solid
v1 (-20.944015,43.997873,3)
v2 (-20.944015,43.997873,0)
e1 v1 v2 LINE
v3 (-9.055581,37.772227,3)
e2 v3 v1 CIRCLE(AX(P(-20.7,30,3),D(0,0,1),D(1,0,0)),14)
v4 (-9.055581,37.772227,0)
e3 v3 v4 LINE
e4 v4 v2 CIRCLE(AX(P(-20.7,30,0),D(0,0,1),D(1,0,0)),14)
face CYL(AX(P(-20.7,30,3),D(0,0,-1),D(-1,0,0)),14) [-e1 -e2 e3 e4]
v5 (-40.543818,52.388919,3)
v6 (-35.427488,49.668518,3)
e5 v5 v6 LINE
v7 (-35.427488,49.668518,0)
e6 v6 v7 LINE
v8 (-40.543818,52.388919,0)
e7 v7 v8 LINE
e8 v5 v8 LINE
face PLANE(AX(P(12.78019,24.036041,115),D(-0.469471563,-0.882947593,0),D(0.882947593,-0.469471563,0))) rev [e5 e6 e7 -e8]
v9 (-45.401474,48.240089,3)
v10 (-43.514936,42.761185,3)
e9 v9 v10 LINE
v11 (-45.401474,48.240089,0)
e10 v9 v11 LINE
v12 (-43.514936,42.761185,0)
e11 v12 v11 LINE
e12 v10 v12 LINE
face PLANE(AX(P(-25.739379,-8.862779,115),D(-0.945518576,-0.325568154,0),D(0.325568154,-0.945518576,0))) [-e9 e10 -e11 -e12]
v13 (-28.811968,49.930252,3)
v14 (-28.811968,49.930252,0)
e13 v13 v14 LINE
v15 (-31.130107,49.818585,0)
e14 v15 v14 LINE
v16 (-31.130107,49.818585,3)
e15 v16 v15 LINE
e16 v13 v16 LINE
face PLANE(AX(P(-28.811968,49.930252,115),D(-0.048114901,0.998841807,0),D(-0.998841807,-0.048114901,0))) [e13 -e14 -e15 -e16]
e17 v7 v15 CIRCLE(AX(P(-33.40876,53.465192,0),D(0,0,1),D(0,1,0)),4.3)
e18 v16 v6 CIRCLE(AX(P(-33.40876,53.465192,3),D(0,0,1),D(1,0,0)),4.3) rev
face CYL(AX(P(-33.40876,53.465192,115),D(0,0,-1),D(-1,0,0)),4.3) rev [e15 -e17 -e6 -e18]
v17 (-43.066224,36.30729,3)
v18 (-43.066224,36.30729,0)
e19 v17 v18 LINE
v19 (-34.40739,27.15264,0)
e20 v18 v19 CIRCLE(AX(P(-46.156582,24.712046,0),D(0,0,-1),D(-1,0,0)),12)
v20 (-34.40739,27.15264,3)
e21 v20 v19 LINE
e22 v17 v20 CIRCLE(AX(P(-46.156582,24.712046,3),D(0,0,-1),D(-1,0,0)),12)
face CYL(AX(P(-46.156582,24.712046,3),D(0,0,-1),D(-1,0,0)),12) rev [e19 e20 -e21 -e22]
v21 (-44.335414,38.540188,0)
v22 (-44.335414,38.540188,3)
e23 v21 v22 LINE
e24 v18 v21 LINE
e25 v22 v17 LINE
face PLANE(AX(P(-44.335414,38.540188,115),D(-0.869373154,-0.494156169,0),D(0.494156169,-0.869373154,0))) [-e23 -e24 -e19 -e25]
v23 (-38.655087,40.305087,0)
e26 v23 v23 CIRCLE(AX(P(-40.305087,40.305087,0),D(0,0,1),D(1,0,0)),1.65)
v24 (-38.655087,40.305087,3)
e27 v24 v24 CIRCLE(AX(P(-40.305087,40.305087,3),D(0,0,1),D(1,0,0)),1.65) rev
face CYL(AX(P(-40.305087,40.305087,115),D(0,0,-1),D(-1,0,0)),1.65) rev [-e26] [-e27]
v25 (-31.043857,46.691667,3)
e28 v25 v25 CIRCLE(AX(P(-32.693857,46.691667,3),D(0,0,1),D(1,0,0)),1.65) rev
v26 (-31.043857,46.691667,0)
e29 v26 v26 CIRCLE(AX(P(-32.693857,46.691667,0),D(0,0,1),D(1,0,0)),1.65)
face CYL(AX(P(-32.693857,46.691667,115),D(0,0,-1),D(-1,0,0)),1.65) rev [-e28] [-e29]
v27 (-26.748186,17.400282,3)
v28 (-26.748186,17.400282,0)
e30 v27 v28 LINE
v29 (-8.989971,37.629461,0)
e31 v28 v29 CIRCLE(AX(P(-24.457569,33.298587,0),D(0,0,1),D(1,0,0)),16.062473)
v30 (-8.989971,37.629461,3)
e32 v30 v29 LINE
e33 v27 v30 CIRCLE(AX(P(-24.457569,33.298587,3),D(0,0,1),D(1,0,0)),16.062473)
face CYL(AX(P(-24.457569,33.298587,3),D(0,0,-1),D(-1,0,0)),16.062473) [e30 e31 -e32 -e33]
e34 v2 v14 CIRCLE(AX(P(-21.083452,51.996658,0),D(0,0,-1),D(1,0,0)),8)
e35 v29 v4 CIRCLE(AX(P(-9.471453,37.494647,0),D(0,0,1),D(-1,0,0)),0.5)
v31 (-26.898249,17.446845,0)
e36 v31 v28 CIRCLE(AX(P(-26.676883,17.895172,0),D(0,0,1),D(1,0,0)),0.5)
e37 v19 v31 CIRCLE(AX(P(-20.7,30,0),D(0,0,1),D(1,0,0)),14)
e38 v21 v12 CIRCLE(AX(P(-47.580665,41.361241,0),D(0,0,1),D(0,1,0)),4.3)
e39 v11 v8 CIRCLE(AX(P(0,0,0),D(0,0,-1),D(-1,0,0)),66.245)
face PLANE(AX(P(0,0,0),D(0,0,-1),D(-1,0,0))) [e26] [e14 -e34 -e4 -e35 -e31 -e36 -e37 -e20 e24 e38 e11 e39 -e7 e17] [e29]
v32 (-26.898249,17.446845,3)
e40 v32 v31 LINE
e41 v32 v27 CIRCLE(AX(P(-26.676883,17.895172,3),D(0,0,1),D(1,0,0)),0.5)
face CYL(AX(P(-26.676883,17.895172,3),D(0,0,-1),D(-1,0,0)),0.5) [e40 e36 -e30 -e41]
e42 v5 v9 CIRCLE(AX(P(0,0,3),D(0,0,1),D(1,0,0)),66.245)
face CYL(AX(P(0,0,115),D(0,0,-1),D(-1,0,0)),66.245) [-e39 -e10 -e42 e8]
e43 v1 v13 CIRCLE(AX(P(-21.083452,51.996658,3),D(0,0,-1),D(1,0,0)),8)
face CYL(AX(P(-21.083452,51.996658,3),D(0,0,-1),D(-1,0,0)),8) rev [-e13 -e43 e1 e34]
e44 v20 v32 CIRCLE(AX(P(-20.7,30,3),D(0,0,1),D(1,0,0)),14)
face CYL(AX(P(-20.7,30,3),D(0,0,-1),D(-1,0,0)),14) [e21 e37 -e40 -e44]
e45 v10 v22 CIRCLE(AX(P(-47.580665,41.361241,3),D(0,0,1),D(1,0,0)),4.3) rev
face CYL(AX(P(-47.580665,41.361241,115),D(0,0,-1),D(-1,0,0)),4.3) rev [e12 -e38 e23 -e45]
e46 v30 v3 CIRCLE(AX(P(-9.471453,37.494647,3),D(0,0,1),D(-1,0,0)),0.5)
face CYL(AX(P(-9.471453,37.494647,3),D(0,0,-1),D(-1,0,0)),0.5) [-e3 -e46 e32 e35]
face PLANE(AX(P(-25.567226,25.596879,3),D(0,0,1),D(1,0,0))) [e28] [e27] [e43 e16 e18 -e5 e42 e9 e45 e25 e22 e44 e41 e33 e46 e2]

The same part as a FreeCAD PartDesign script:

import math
import FreeCAD as App
import Part
import Sketcher
Q = App.Units.Quantity

doc = App.newDocument("Part")
body = doc.addObject("PartDesign::Body", "Body")

# Sketch on XY plane
sketch1 = body.newObject("Sketcher::SketchObject", "Sketch")
sketch1.AttachmentSupport = (doc.getObject("XY_Plane"), [""])
sketch1.MapMode = "FlatFace"
sketch1.addGeometry([
    Part.LineSegment(App.Vector(-23.8, 62.1, 0), App.Vector(-25.6, 66.8, 0)),
    Part.ArcOfCircle(Part.Circle(App.Vector(0, 0, 0), App.Vector(0, 0, 1), 71.5), math.radians(111), math.radians(151)),
    Part.LineSegment(App.Vector(-62.6, 34.6, 0), App.Vector(-58.3, 32.2, 0)),
    Part.ArcOfCircle(Part.Circle(App.Vector(0, 0, 0), App.Vector(0, 0, 1), 66.5), math.radians(111), math.radians(151)),
], False)
sketch1.addConstraint([
    Sketcher.Constraint("Coincident", 0, 2, 1, 1),
    Sketcher.Constraint("Coincident", 1, 2, 2, 1),
    Sketcher.Constraint("Coincident", 2, 2, 3, 2),
    Sketcher.Constraint("Coincident", 3, 1, 0, 1),
    Sketcher.Constraint("Coincident", 1, 3, -1, 1),
    Sketcher.Constraint("Coincident", 3, 3, -1, 1),
    Sketcher.Constraint("Angle", 0, Q("111 deg")),
    Sketcher.Constraint("Distance", 0, 5.0),
    Sketcher.Constraint("Radius", 1, 71.545),
    Sketcher.Constraint("Angle", 2, Q("-28.91 deg")),
    Sketcher.Constraint("DistanceY", -1, 1, 0, 2, 66.793012),
    Sketcher.Constraint("DistanceY", -1, 1, 1, 2, 34.587369),
])
pad1 = body.newObject("PartDesign::Pad", "Pad")
pad1.Profile = sketch1
pad1.Length = 115

# Sketch on XY plane
sketch2 = body.newObject("Sketcher::SketchObject", "Sketch001")
sketch2.AttachmentSupport = (doc.getObject("XY_Plane"), [""])
sketch2.MapMode = "FlatFace"
sketch2.addGeometry([
    Part.ArcOfCircle(Part.Circle(App.Vector(-20.7, 30, 0), App.Vector(0, 0, 1), 14), math.radians(34), math.radians(91)),  # 0
    Part.ArcOfCircle(Part.Circle(App.Vector(-21.08, 52, 0), App.Vector(0, 0, 1), 8), math.radians(119), math.radians(271)),  # 1
    Part.ArcOfCircle(Part.Circle(App.Vector(-26.16, 61.19, 0), App.Vector(0, 0, 1), 2.5), math.radians(-61), math.radians(22)),  # 2
    Part.ArcOfCircle(Part.Circle(App.Vector(0, 0, 0), App.Vector(0, 0, 1), 66.54), math.radians(111), math.radians(151)),  # 3
    Part.ArcOfCircle(Part.Circle(App.Vector(-57, 34.34, 0), App.Vector(0, 0, 1), 2.5), math.radians(-120), math.radians(-42)),  # 4
    Part.ArcOfCircle(Part.Circle(App.Vector(-46.16, 24.71, 0), App.Vector(0, 0, 1), 12), math.radians(12), math.radians(138)),  # 5
    Part.ArcOfCircle(Part.Circle(App.Vector(-20.7, 30, 0), App.Vector(0, 0, 1), 14), math.radians(-168), math.radians(-116)),  # 6
    Part.ArcOfCircle(Part.Circle(App.Vector(-26.68, 17.9, 0), App.Vector(0, 0, 1), 0.5), math.radians(-116.28), math.radians(-98.2)),  # 7
    Part.ArcOfCircle(Part.Circle(App.Vector(-24.46, 33.3, 0), App.Vector(0, 0, 1), 16.06), math.radians(-98), math.radians(16)),  # 8
    Part.ArcOfCircle(Part.Circle(App.Vector(-9.47, 37.49, 0), App.Vector(0, 0, 1), 0.5), math.radians(15.64), math.radians(33.72)),  # 9
], False)
sketch2.addConstraint([
    Sketcher.Constraint("Tangent", 0, 2, 1, 2),
    Sketcher.Constraint("Tangent", 1, 1, 2, 1),
    Sketcher.Constraint("Coincident", 2, 2, 3, 1),
    Sketcher.Constraint("Coincident", 3, 2, 4, 1),
    Sketcher.Constraint("Tangent", 4, 2, 5, 2),
    Sketcher.Constraint("Tangent", 5, 1, 6, 1),
    Sketcher.Constraint("Tangent", 6, 2, 7, 1),
    Sketcher.Constraint("Tangent", 7, 2, 8, 1),
    Sketcher.Constraint("Tangent", 8, 2, 9, 1),
    Sketcher.Constraint("Tangent", 9, 2, 0, 1),
    Sketcher.Constraint("Coincident", 3, 3, -1, 1),
    Sketcher.Constraint("Coincident", 6, 3, 0, 3),
    Sketcher.Constraint("Equal", 2, 4),
    Sketcher.Constraint("Equal", 0, 6),
    Sketcher.Constraint("Equal", 7, 9),
    Sketcher.Constraint("Radius", 0, 14.0),
    Sketcher.Constraint("Radius", 1, 8.0),
    Sketcher.Constraint("Radius", 5, 12.0),
    Sketcher.Constraint("Radius", 2, 2.5),
    Sketcher.Constraint("Radius", 7, 0.5),
    Sketcher.Constraint("DistanceY", -1, 1, 0, 3, 30.0),
    Sketcher.Constraint("Radius", 3, 66.545),
    Sketcher.Constraint("DistanceX", 0, 3, -1, 1, 20.7),
    Sketcher.Constraint("Radius", 8, 16.062473),
    Sketcher.Constraint("DistanceX", 1, 3, 9, 3, 11.611998),
    Sketcher.Constraint("DistanceX", 5, 3, 7, 3, 19.479699),
    Sketcher.Constraint("DistanceX", 3, 2, 4, 2, 3.119502),
    Sketcher.Constraint("DistanceX", 1, 3, -1, 1, 21.083452),
    Sketcher.Constraint("DistanceX", 4, 3, -1, 1, 57.00269),
    Sketcher.Constraint("DistanceX", 1, 1, -1, 1, 24.954578),
])
pad2 = body.newObject("PartDesign::Pad", "Pad001")
pad2.Profile = sketch2
pad2.Length = 3

# Sketch on XY plane
sketch3 = body.newObject("Sketcher::SketchObject", "Sketch002")
sketch3.AttachmentSupport = (doc.getObject("XY_Plane"), [""])
sketch3.MapMode = "FlatFace"
sketch3.addGeometry([
    Part.Circle(App.Vector(-40.3, 40.3, 0), App.Vector(0, 0, 1), 1.6),
    Part.Circle(App.Vector(-32.7, 46.7, 0), App.Vector(0, 0, 1), 1.6),
], False)
sketch3.addConstraint([
    Sketcher.Constraint("Equal", 0, 1),
    Sketcher.Constraint("Diameter", 0, 3.3),
    Sketcher.Constraint("DistanceX", 0, 3, 1, 3, 7.61123),
    Sketcher.Constraint("DistanceY", 0, 3, 1, 3, 6.38658),
    Sketcher.Constraint("DistanceX", 0, 3, -1, 1, 40.305087),
    Sketcher.Constraint("DistanceY", -1, 1, 0, 3, 40.305087),
])
pocket1 = body.newObject("PartDesign::Pocket", "Pocket")
pocket1.Profile = sketch3
pocket1.Type = "ThroughAll"
pocket1.Reversed = True

# Sketch on XY plane
sketch4 = body.newObject("Sketcher::SketchObject", "Sketch003")
sketch4.AttachmentSupport = (doc.getObject("XY_Plane"), [""])
sketch4.MapMode = "FlatFace"
sketch4.addGeometry([
    Part.ArcOfCircle(Part.Circle(App.Vector(0, 0, 0), App.Vector(0, 0, 1), 66.5), math.radians(116.43), math.radians(127.57)),  # 0
    Part.LineSegment(App.Vector(-40.6, 52.7, 0), App.Vector(-35.3, 49.9, 0)),  # 1
    Part.ArcOfCircle(Part.Circle(App.Vector(-33.4, 53.5, 0), App.Vector(0, 0, 1), 4), math.radians(-118), math.radians(2)),  # 2
    Part.LineSegment(App.Vector(-29.4, 53.6, 0), App.Vector(-29.6, 59.6, 0)),  # 3
    Part.ArcOfCircle(Part.Circle(App.Vector(0, 0, 0), App.Vector(0, 0, 1), 66.5), math.radians(133.43), math.radians(144.57)),  # 4
    Part.LineSegment(App.Vector(-54.2, 38.6, 0), App.Vector(-48.3, 37.4, 0)),  # 5
    Part.ArcOfCircle(Part.Circle(App.Vector(-47.6, 41.4, 0), App.Vector(0, 0, 1), 4), math.radians(-101), math.radians(19)),  # 6
    Part.LineSegment(App.Vector(-43.8, 42.7, 0), App.Vector(-45.7, 48.3, 0)),  # 7
], False)
sketch4.addConstraint([
    Sketcher.Constraint("Coincident", 0, 2, 1, 1),
    Sketcher.Constraint("Tangent", 1, 2, 2, 1),
    Sketcher.Constraint("Tangent", 2, 2, 3, 1),
    Sketcher.Constraint("Coincident", 3, 2, 0, 1),
    Sketcher.Constraint("Coincident", 4, 2, 5, 1),
    Sketcher.Constraint("Tangent", 5, 2, 6, 1),
    Sketcher.Constraint("Tangent", 6, 2, 7, 1),
    Sketcher.Constraint("Coincident", 7, 2, 4, 1),
    Sketcher.Constraint("Coincident", 0, 3, -1, 1),
    Sketcher.Constraint("Coincident", 4, 3, -1, 1),
    Sketcher.Constraint("Equal", 0, 4),
    Sketcher.Constraint("Equal", 2, 6),
    Sketcher.Constraint("Equal", 1, 3),
    Sketcher.Constraint("Equal", 3, 5),
    Sketcher.Constraint("Equal", 5, 7),
    Sketcher.Constraint("Radius", 2, 4.0),
    Sketcher.Constraint("Angle", 1, Q("-28 deg")),
    Sketcher.Constraint("Angle", 3, Q("92 deg")),
    Sketcher.Constraint("Angle", 5, Q("-11 deg")),
    Sketcher.Constraint("Angle", 7, Q("109 deg")),
    Sketcher.Constraint("Radius", 0, 66.545),
    Sketcher.Constraint("DistanceY", -1, 1, 1, 2, 49.933402),
])
pocket2 = body.newObject("PartDesign::Pocket", "Pocket001")
pocket2.Profile = sketch4
pocket2.Type = "ThroughAll"
pocket2.Reversed = True

# Sketch on XY plane
sketch5 = body.newObject("Sketcher::SketchObject", "Sketch004")
sketch5.AttachmentSupport = (doc.getObject("XY_Plane"), [""])
sketch5.MapMode = "FlatFace"
sketch5.addGeometry([
    Part.LineSegment(App.Vector(-29.1, 53.6, 0), App.Vector(-29.3, 60.1, 0)),  # 0
    Part.ArcOfCircle(Part.Circle(App.Vector(0, 0, 0), App.Vector(0, 0, 1), 66.8), math.radians(116.03), math.radians(127.97)),  # 1
    Part.LineSegment(App.Vector(-41.1, 52.7, 0), App.Vector(-35.4, 49.7, 0)),  # 2
    Part.ArcOfCircle(Part.Circle(App.Vector(-33.4, 53.5, 0), App.Vector(0, 0, 1), 4.3), math.radians(-118), math.radians(2)),  # 3
    Part.LineSegment(App.Vector(-29.6, 59.6, 0), App.Vector(-29.4, 53.6, 0)),  # 4
    Part.ArcOfCircle(Part.Circle(App.Vector(-33.4, 53.5, 0), App.Vector(0, 0, 1), 4), math.radians(-118), math.radians(2)),  # 5
    Part.LineSegment(App.Vector(-35.3, 49.9, 0), App.Vector(-40.6, 52.7, 0)),  # 6
    Part.ArcOfCircle(Part.Circle(App.Vector(0, 0, 0), App.Vector(0, 0, 1), 66.5), math.radians(116.43), math.radians(127.57)),  # 7
    Part.LineSegment(App.Vector(-43.5, 42.8, 0), App.Vector(-45.6, 48.9, 0)),  # 8
    Part.ArcOfCircle(Part.Circle(App.Vector(0, 0, 0), App.Vector(0, 0, 1), 66.8), math.radians(133.03), math.radians(144.97)),  # 9
    Part.LineSegment(App.Vector(-54.7, 38.4, 0), App.Vector(-48.4, 37.1, 0)),  # 10
    Part.ArcOfCircle(Part.Circle(App.Vector(-47.6, 41.4, 0), App.Vector(0, 0, 1), 4.3), math.radians(-101), math.radians(19)),  # 11
    Part.LineSegment(App.Vector(-45.7, 48.3, 0), App.Vector(-43.8, 42.7, 0)),  # 12
    Part.ArcOfCircle(Part.Circle(App.Vector(-47.6, 41.4, 0), App.Vector(0, 0, 1), 4), math.radians(-101), math.radians(19)),  # 13
    Part.LineSegment(App.Vector(-48.3, 37.4, 0), App.Vector(-54.2, 38.6, 0)),  # 14
    Part.ArcOfCircle(Part.Circle(App.Vector(0, 0, 0), App.Vector(0, 0, 1), 66.5), math.radians(133.43), math.radians(144.57)),  # 15
], False)
sketch5.addConstraint([
    Sketcher.Constraint("Coincident", 0, 2, 1, 1),
    Sketcher.Constraint("Coincident", 1, 2, 2, 1),
    Sketcher.Constraint("Tangent", 2, 2, 3, 1),
    Sketcher.Constraint("Tangent", 3, 2, 0, 1),
    Sketcher.Constraint("Tangent", 4, 2, 5, 2),
    Sketcher.Constraint("Tangent", 5, 1, 6, 1),
    Sketcher.Constraint("Coincident", 6, 2, 7, 2),
    Sketcher.Constraint("Coincident", 7, 1, 4, 1),
    Sketcher.Constraint("Coincident", 8, 2, 9, 1),
    Sketcher.Constraint("Coincident", 9, 2, 10, 1),
    Sketcher.Constraint("Tangent", 10, 2, 11, 1),
    Sketcher.Constraint("Tangent", 11, 2, 8, 1),
    Sketcher.Constraint("Tangent", 12, 2, 13, 2),
    Sketcher.Constraint("Tangent", 13, 1, 14, 1),
    Sketcher.Constraint("Coincident", 14, 2, 15, 2),
    Sketcher.Constraint("Coincident", 15, 1, 12, 1),
    Sketcher.Constraint("Coincident", 1, 3, -1, 1),
    Sketcher.Constraint("Coincident", 7, 3, -1, 1),
    Sketcher.Constraint("Coincident", 9, 3, -1, 1),
    Sketcher.Constraint("Coincident", 15, 3, -1, 1),
    Sketcher.Constraint("Coincident", 5, 3, 3, 3),
    Sketcher.Constraint("Coincident", 13, 3, 11, 3),
    Sketcher.Constraint("Equal", 1, 9),
    Sketcher.Constraint("Equal", 3, 11),
    Sketcher.Constraint("Equal", 5, 13),
    Sketcher.Constraint("Equal", 7, 15),
    Sketcher.Constraint("Parallel", 0, 4),
    Sketcher.Constraint("Parallel", 2, 6),
    Sketcher.Constraint("Parallel", 8, 12),
    Sketcher.Constraint("Parallel", 10, 14),
    Sketcher.Constraint("Equal", 0, 2),
    Sketcher.Constraint("Equal", 2, 8),
    Sketcher.Constraint("Equal", 8, 10),
    Sketcher.Constraint("Equal", 6, 12),
    Sketcher.Constraint("Radius", 5, 4.0),
    Sketcher.Constraint("Radius", 3, 4.3),
    Sketcher.Constraint("Angle", 0, Q("92 deg")),
    Sketcher.Constraint("Angle", 2, Q("-28 deg")),
    Sketcher.Constraint("Angle", 8, Q("109 deg")),
    Sketcher.Constraint("Radius", 1, 66.845),
    Sketcher.Constraint("Radius", 7, 66.545),
    Sketcher.Constraint("DistanceY", -1, 1, 5, 1, 49.933402),
])
pocket3 = body.newObject("PartDesign::Pocket", "Pocket002")
pocket3.Profile = sketch5
pocket3.Type = "ThroughAll"
pocket3.Reversed = True

# Sketch on XY plane
sketch6 = body.newObject("Sketcher::SketchObject", "Sketch005")
sketch6.AttachmentSupport = (doc.getObject("XY_Plane"), [""])
sketch6.MapMode = "FlatFace"
sketch6.addGeometry([
    Part.LineSegment(App.Vector(-44.3, 38.5, 0), App.Vector(-45.4, 48.2, 0)),  # 0
    Part.ArcOfCircle(Part.Circle(App.Vector(0, 0, 0), App.Vector(0, 0, 1), 66.2), math.radians(127.74), math.radians(133.26)),  # 1
    Part.LineSegment(App.Vector(-40.5, 52.4, 0), App.Vector(-31.1, 49.8, 0)),  # 2
    Part.LineSegment(App.Vector(-31.1, 49.8, 0), App.Vector(-28.8, 49.9, 0)),  # 3
    Part.LineSegment(App.Vector(-28.8, 49.9, 0), App.Vector(-26.4, 52.4, 0)),  # 4
    Part.LineSegment(App.Vector(-26.4, 52.4, 0), App.Vector(-18.6, 69, 0)),  # 5
    Part.LineSegment(App.Vector(-18.6, 69, 0), App.Vector(-34.3, 73, 0)),  # 6
    Part.LineSegment(App.Vector(-34.3, 73, 0), App.Vector(-72.5, 52.4, 0)),  # 7
    Part.LineSegment(App.Vector(-72.5, 52.4, 0), App.Vector(-61, 22.6, 0)),  # 8
    Part.LineSegment(App.Vector(-61, 22.6, 0), App.Vector(-43.1, 36.3, 0)),  # 9
    Part.LineSegment(App.Vector(-43.1, 36.3, 0), App.Vector(-44.3, 38.5, 0)),  # 10
], False)
sketch6.addConstraint([
    Sketcher.Constraint("Coincident", 0, 2, 1, 2),
    Sketcher.Constraint("Coincident", 1, 1, 2, 1),
    Sketcher.Constraint("Coincident", 2, 2, 3, 1),
    Sketcher.Constraint("Coincident", 3, 2, 4, 1),
    Sketcher.Constraint("Coincident", 4, 2, 5, 1),
    Sketcher.Constraint("Coincident", 5, 2, 6, 1),
    Sketcher.Constraint("Coincident", 6, 2, 7, 1),
    Sketcher.Constraint("Coincident", 7, 2, 8, 1),
    Sketcher.Constraint("Coincident", 8, 2, 9, 1),
    Sketcher.Constraint("Coincident", 9, 2, 10, 1),
    Sketcher.Constraint("Coincident", 10, 2, 0, 1),
    Sketcher.Constraint("Coincident", 1, 3, -1, 1),
    Sketcher.Constraint("Horizontal", 1, 1, 4, 2),
    Sketcher.Constraint("Horizontal", 4, 2, 7, 2),
    Sketcher.Constraint("Equal", 0, 2),
    Sketcher.Constraint("Radius", 1, 66.245),
    Sketcher.Constraint("DistanceX", 2, 2, 4, 2, 4.692),
    Sketcher.Constraint("Distance", 10, 2.568399),
    Sketcher.Constraint("DistanceY", 9, 2, 0, 2, 11.932799),
    Sketcher.Constraint("DistanceY", 10, 2, 0, 2, 9.699902),
    Sketcher.Constraint("Distance", 4, 3.417639),
    Sketcher.Constraint("Distance", 6, 16.170161),
    Sketcher.Constraint("Distance", 9, 22.550212),
    Sketcher.Constraint("DistanceY", -1, 1, 0, 2, 48.240089),
    Sketcher.Constraint("DistanceX", 1, 1, -1, 1, 40.543818),
    Sketcher.Constraint("DistanceX", 3, 2, -1, 1, 28.811968),
    Sketcher.Constraint("DistanceY", -1, 1, 3, 2, 49.930252),
    Sketcher.Constraint("DistanceY", -1, 1, 6, 2, 73.007988),
    Sketcher.Constraint("DistanceX", 7, 2, -1, 1, 72.501111),
    Sketcher.Constraint("DistanceY", 3, 2, 5, 2, 19.020812),
    Sketcher.Constraint("DistanceX", 0, 2, 5, 2, 26.789851),
    Sketcher.Constraint("DistanceX", 8, 2, 0, 2, 15.571209),
    Sketcher.Constraint("DistanceY", 8, 2, 2, 2, 27.217892),
])
pocket4 = body.newObject("PartDesign::Pocket", "Pocket003")
pocket4.Profile = sketch6
pocket4.Type = "ThroughAll"
pocket4.Reversed = True

doc.recompute()
